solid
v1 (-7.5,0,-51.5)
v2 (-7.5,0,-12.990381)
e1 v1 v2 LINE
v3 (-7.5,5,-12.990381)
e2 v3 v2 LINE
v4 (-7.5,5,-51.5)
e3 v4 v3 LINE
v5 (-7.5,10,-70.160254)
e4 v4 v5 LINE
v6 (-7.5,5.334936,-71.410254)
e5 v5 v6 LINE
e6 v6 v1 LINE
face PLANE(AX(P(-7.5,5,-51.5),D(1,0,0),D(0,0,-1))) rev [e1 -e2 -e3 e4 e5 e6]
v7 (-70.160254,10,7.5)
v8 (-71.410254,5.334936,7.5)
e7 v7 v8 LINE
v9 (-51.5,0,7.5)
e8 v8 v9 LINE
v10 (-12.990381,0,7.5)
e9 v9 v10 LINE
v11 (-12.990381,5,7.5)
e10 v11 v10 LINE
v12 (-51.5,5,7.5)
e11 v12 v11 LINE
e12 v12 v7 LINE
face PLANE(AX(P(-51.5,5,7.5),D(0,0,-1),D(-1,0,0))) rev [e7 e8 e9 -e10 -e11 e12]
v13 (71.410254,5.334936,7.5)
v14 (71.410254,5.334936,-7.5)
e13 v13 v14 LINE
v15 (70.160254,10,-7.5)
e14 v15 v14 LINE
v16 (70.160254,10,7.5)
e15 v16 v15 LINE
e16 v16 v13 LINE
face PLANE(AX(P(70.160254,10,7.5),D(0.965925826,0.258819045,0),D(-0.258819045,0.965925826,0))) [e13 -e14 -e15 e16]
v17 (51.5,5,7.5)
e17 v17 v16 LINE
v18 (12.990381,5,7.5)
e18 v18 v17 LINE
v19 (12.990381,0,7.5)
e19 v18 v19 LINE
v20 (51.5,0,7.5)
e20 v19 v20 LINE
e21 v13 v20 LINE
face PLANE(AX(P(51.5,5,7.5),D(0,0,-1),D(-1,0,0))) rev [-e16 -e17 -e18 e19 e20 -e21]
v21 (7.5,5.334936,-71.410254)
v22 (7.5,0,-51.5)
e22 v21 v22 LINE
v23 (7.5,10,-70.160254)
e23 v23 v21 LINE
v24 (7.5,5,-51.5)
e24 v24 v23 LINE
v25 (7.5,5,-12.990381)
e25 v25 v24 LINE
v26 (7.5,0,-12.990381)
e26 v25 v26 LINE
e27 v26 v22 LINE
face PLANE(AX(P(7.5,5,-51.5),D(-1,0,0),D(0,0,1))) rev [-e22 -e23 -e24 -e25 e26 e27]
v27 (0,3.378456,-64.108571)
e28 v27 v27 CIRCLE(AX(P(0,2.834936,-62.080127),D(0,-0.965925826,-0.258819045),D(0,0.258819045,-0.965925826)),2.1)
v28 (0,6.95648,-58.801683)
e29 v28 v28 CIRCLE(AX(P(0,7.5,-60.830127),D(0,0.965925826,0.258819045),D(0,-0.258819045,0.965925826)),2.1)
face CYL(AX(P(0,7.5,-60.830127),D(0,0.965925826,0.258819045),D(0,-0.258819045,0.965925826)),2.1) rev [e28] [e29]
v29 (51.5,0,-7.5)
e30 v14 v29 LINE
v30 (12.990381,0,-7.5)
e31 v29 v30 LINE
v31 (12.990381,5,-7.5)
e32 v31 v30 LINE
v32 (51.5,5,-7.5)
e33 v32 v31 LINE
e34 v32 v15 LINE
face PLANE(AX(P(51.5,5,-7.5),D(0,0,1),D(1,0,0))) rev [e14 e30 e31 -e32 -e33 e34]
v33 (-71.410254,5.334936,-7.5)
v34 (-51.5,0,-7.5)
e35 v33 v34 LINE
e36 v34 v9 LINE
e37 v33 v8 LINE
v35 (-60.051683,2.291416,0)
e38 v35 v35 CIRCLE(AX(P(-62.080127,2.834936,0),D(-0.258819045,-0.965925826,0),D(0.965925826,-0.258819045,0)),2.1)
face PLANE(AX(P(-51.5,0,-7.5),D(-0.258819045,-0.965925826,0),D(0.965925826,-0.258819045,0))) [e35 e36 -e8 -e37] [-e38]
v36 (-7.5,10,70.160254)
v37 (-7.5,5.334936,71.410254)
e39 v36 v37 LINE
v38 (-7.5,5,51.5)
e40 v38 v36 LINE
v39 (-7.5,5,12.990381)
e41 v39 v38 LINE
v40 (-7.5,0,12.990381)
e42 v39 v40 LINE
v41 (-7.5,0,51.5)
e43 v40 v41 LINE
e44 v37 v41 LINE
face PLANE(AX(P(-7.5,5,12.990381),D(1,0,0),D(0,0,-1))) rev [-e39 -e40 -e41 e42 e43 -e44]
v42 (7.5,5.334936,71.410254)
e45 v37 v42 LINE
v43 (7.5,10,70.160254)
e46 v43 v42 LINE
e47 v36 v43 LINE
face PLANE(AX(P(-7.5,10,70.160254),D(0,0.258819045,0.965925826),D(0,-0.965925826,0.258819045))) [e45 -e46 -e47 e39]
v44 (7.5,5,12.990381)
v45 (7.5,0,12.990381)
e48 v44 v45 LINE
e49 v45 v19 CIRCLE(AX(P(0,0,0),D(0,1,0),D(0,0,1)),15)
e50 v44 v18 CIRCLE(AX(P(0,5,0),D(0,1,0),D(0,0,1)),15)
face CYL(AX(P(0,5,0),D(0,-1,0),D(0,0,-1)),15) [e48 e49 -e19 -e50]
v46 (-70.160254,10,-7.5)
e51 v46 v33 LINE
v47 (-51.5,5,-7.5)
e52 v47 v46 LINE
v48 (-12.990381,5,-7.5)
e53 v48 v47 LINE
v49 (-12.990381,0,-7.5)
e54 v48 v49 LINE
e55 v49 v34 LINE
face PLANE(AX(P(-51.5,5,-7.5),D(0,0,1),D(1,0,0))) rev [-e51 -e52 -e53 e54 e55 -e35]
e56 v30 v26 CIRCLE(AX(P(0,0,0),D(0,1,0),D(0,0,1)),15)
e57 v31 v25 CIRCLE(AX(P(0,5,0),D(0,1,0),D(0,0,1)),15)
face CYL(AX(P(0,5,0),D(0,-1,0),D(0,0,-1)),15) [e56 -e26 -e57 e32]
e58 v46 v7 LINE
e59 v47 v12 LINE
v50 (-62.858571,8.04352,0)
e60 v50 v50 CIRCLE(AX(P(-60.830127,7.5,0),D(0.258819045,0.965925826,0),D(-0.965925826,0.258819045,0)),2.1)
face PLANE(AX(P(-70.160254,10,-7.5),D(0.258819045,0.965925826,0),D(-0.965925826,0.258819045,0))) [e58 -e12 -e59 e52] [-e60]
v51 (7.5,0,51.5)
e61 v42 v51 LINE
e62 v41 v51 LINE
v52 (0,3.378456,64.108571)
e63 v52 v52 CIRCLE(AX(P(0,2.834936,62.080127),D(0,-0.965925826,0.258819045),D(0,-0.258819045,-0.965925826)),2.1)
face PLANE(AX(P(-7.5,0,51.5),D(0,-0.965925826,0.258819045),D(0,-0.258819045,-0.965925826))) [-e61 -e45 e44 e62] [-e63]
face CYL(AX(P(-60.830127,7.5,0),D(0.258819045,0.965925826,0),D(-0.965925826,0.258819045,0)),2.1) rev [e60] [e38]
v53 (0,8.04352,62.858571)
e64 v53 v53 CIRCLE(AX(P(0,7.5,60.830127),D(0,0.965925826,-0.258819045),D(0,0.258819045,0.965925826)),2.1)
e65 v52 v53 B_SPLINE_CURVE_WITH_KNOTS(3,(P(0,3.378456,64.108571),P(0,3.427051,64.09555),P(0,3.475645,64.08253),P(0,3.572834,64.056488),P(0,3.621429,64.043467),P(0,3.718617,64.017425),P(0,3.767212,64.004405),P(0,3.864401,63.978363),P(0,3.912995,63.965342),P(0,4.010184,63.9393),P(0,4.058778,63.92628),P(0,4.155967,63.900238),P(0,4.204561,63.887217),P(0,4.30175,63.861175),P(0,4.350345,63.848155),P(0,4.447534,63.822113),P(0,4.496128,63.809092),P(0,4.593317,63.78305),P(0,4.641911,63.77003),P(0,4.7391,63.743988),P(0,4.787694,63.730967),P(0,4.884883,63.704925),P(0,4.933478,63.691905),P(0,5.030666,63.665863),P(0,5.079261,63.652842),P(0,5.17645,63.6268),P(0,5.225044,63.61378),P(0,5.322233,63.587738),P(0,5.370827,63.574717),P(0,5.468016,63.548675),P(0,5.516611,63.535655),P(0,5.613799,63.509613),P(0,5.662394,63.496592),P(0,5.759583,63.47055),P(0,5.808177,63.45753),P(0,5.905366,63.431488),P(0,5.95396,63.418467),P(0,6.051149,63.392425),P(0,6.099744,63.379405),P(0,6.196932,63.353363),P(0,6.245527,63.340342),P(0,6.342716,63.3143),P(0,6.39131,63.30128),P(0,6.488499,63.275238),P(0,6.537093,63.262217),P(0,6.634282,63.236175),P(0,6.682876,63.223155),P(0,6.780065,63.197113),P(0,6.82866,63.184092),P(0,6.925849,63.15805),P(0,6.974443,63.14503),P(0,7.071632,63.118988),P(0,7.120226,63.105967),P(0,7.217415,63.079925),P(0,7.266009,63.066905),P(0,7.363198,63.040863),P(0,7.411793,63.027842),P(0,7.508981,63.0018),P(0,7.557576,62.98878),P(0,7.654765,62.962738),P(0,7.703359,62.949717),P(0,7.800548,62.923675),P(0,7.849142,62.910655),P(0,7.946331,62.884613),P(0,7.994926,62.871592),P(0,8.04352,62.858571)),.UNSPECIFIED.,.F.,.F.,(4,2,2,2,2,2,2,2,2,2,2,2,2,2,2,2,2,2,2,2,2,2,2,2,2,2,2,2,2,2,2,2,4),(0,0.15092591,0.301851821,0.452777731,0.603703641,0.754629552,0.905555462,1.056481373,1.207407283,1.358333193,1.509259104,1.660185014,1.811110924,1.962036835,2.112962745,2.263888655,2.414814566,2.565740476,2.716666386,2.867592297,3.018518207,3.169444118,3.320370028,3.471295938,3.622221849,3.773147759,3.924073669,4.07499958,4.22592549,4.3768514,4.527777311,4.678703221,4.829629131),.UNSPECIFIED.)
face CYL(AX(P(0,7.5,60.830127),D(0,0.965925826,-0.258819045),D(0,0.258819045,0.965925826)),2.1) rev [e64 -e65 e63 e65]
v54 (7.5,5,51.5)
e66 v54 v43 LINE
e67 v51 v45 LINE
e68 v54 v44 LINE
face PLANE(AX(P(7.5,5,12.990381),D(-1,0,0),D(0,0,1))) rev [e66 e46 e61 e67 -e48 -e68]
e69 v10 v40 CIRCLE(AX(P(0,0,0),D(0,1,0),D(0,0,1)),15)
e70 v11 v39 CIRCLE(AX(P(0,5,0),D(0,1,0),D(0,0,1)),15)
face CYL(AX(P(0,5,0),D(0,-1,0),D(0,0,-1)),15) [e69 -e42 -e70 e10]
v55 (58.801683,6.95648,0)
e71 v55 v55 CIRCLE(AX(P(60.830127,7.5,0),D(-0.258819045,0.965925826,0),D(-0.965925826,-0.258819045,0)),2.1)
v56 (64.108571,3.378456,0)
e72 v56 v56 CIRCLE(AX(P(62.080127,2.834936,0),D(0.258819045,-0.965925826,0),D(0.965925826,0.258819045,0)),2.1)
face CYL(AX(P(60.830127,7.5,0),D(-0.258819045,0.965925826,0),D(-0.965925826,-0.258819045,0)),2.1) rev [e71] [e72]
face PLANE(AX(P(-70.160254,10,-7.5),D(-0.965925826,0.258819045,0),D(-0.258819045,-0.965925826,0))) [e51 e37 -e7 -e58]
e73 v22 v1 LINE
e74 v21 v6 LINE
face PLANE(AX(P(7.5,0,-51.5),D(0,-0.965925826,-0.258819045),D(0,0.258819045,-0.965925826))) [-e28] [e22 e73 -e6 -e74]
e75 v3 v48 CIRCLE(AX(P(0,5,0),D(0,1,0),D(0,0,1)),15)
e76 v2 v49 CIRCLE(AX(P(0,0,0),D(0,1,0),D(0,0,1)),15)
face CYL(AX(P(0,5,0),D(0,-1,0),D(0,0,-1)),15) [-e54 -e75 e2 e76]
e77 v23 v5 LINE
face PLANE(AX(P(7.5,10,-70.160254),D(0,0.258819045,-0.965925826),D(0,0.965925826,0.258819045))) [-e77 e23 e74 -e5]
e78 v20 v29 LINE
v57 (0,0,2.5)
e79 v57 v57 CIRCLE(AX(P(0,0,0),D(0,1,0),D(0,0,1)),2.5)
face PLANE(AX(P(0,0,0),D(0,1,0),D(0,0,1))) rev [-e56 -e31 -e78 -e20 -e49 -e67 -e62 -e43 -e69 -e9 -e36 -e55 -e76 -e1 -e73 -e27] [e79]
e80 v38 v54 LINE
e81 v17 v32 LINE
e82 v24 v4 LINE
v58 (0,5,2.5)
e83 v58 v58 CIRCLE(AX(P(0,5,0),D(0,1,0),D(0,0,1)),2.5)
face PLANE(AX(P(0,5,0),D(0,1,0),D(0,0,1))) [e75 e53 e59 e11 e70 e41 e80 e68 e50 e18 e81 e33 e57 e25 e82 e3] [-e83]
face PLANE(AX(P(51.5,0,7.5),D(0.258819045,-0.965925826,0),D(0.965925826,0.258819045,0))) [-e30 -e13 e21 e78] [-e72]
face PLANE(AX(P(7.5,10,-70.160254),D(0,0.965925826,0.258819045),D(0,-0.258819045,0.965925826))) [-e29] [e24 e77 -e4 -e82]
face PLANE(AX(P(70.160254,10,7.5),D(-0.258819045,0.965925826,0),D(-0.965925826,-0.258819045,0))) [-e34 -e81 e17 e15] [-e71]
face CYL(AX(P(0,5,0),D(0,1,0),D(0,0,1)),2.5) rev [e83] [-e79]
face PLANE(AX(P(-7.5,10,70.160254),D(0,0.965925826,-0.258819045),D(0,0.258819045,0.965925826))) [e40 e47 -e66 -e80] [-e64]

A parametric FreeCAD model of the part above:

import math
import FreeCAD as App
import Part
import Sketcher
from FreeCAD import Vector
Q = App.Units.Quantity

doc = App.newDocument("Part")
body = doc.addObject("PartDesign::Body", "Body")

# Sketch on XZ plane
sketch1 = body.newObject("Sketcher::SketchObject", "Sketch")
sketch1.AttachmentSupport = (doc.getObject("XZ_Plane"), [""])
sketch1.MapMode = "FlatFace"
sketch1.addGeometry([
    Part.LineSegment(Vector(8, -52, 0), Vector(-8, -52, 0)),  # 0
    Part.LineSegment(Vector(-8, -52, 0), Vector(-8, -13, 0)),  # 1
    Part.ArcOfCircle(Part.Circle(Vector(0, 0, 0), Vector(0, 0, 1), 15), math.radians(-150), math.radians(-120)),  # 2
    Part.LineSegment(Vector(-13, -8, 0), Vector(-52, -8, 0)),  # 3
    Part.LineSegment(Vector(-52, -8, 0), Vector(-52, 8, 0)),  # 4
    Part.LineSegment(Vector(-52, 8, 0), Vector(-13, 8, 0)),  # 5
    Part.ArcOfCircle(Part.Circle(Vector(0, 0, 0), Vector(0, 0, 1), 15), math.radians(120), math.radians(150)),  # 6
    Part.LineSegment(Vector(-8, 13, 0), Vector(-8, 52, 0)),  # 7
    Part.LineSegment(Vector(-8, 52, 0), Vector(8, 52, 0)),  # 8
    Part.LineSegment(Vector(8, 52, 0), Vector(8, 13, 0)),  # 9
    Part.ArcOfCircle(Part.Circle(Vector(0, 0, 0), Vector(0, 0, 1), 15), math.radians(30), math.radians(60)),  # 10
    Part.LineSegment(Vector(13, 8, 0), Vector(52, 8, 0)),  # 11
    Part.LineSegment(Vector(52, 8, 0), Vector(52, -8, 0)),  # 12
    Part.LineSegment(Vector(52, -8, 0), Vector(13, -8, 0)),  # 13
    Part.ArcOfCircle(Part.Circle(Vector(0, 0, 0), Vector(0, 0, 1), 15), math.radians(-60), math.radians(-30)),  # 14
    Part.LineSegment(Vector(8, -13, 0), Vector(8, -52, 0)),  # 15
], False)
sketch1.addConstraint([
    Sketcher.Constraint("Coincident", 0, 2, 1, 1),
    Sketcher.Constraint("Coincident", 1, 2, 2, 2),
    Sketcher.Constraint("Coincident", 2, 1, 3, 1),
    Sketcher.Constraint("Coincident", 3, 2, 4, 1),
    Sketcher.Constraint("Coincident", 4, 2, 5, 1),
    Sketcher.Constraint("Coincident", 5, 2, 6, 2),
    Sketcher.Constraint("Coincident", 6, 1, 7, 1),
    Sketcher.Constraint("Coincident", 7, 2, 8, 1),
    Sketcher.Constraint("Coincident", 8, 2, 9, 1),
    Sketcher.Constraint("Coincident", 9, 2, 10, 2),
    Sketcher.Constraint("Coincident", 10, 1, 11, 1),
    Sketcher.Constraint("Coincident", 11, 2, 12, 1),
    Sketcher.Constraint("Coincident", 12, 2, 13, 1),
    Sketcher.Constraint("Coincident", 13, 2, 14, 2),
    Sketcher.Constraint("Coincident", 14, 1, 15, 1),
    Sketcher.Constraint("Coincident", 15, 2, 0, 1),
    Sketcher.Constraint("Horizontal", 0),
    Sketcher.Constraint("Vertical", 1),
    Sketcher.Constraint("Horizontal", 3),
    Sketcher.Constraint("Vertical", 4),
    Sketcher.Constraint("Horizontal", 5),
    Sketcher.Constraint("Vertical", 7),
    Sketcher.Constraint("Horizontal", 8),
    Sketcher.Constraint("Vertical", 9),
    Sketcher.Constraint("Horizontal", 11),
    Sketcher.Constraint("Vertical", 12),
    Sketcher.Constraint("Horizontal", 13),
    Sketcher.Constraint("Vertical", 15),
    Sketcher.Constraint("Coincident", 2, 3, -1, 1),
    Sketcher.Constraint("Coincident", 6, 3, -1, 1),
    Sketcher.Constraint("Coincident", 10, 3, -1, 1),
    Sketcher.Constraint("Coincident", 14, 3, -1, 1),
    Sketcher.Constraint("Equal", 2, 6),
    Sketcher.Constraint("Equal", 6, 10),
    Sketcher.Constraint("Equal", 10, 14),
    Sketcher.Constraint("Symmetric", 0, 2, 8, 2, -1, 1),
    Sketcher.Constraint("Symmetric", 3, 2, 11, 2, -1, 1),
    Sketcher.Constraint("Horizontal", 6, 1, 9, 2),
    Sketcher.Constraint("Horizontal", 5, 2, 10, 1),
    Sketcher.Constraint("Horizontal", 3, 2, 12, 2),
    Sketcher.Constraint("Horizontal", 1, 2, 14, 1),
    Sketcher.Constraint("Equal", 13, 1),
    Sketcher.Constraint("Equal", 8, 4),
    Sketcher.Constraint("Radius", 2, 15.0),
    Sketcher.Constraint("DistanceX", 0, 2, 0, 1, 15.0),
    Sketcher.Constraint("DistanceX", 3, 2, 1, 2, 44.0),
])
pad1 = body.newObject("PartDesign::Pad", "Pad")
pad1.Profile = sketch1
pad1.Length = 5
pad1.Reversed = True

# Sketch on YZ plane
sketch2 = body.newObject("Sketcher::SketchObject", "Sketch001")
sketch2.AttachmentSupport = (doc.getObject("YZ_Plane"), [""])
sketch2.MapMode = "FlatFace"
sketch2.AttachmentOffset = App.Placement(Vector(0, 0, 7.5), App.Rotation())
sketch2.addGeometry([
    Part.LineSegment(Vector(5.3, 71.4, 0), Vector(0, 51.5, 0)),
    Part.LineSegment(Vector(0, 51.5, 0), Vector(5, 51.5, 0)),
    Part.LineSegment(Vector(5, 51.5, 0), Vector(10, 70.2, 0)),
    Part.LineSegment(Vector(10, 70.2, 0), Vector(5.3, 71.4, 0)),
], False)
sketch2.addConstraint([
    Sketcher.Constraint("Coincident", 0, 2, 1, 1),
    Sketcher.Constraint("Coincident", 1, 2, 2, 1),
    Sketcher.Constraint("Coincident", 2, 2, 3, 1),
    Sketcher.Constraint("Coincident", 3, 2, 0, 1),
    Sketcher.Constraint("Horizontal", 1),
    Sketcher.Constraint("PointOnObject", 0, 2, -2),
    Sketcher.Constraint("Parallel", 0, 2),
    Sketcher.Constraint("Perpendicular", 2, 3),
    Sketcher.Constraint("DistanceX", 1, 1, 1, 2, 5.0),
    Sketcher.Constraint("Angle", 0, Q("-105 deg")),
    Sketcher.Constraint("DistanceX", -1, 1, 2, 2, 10.0),
    Sketcher.Constraint("DistanceY", -1, 1, 0, 2, 51.5),
])
pad2 = body.newObject("PartDesign::Pad", "Pad001")
pad2.Profile = sketch2
pad2.Length = 15
pad2.Reversed = True

# Sketch on XY plane
sketch3 = body.newObject("Sketcher::SketchObject", "Sketch002")
sketch3.AttachmentSupport = (doc.getObject("XY_Plane"), [""])
sketch3.MapMode = "FlatFace"
sketch3.AttachmentOffset = App.Placement(Vector(0, 0, -7.5), App.Rotation())
sketch3.addGeometry([
    Part.LineSegment(Vector(71.4, 5.3, 0), Vector(51.5, 0, 0)),
    Part.LineSegment(Vector(51.5, 0, 0), Vector(51.5, 5, 0)),
    Part.LineSegment(Vector(51.5, 5, 0), Vector(70.2, 10, 0)),
    Part.LineSegment(Vector(70.2, 10, 0), Vector(71.4, 5.3, 0)),
], False)
sketch3.addConstraint([
    Sketcher.Constraint("Coincident", 0, 2, 1, 1),
    Sketcher.Constraint("Coincident", 1, 2, 2, 1),
    Sketcher.Constraint("Coincident", 2, 2, 3, 1),
    Sketcher.Constraint("Coincident", 3, 2, 0, 1),
    Sketcher.Constraint("Vertical", 1),
    Sketcher.Constraint("PointOnObject", 0, 2, -1),
    Sketcher.Constraint("Parallel", 0, 2),
    Sketcher.Constraint("Perpendicular", 2, 3),
    Sketcher.Constraint("DistanceY", 1, 1, 1, 2, 5.0),
    Sketcher.Constraint("Angle", 0, Q("-165 deg")),
    Sketcher.Constraint("DistanceY", -1, 1, 2, 2, 10.0),
    Sketcher.Constraint("DistanceX", -1, 1, 0, 2, 51.5),
])
pad3 = body.newObject("PartDesign::Pad", "Pad002")
pad3.Profile = sketch3
pad3.Length = 15

# Sketch on YZ plane
sketch4 = body.newObject("Sketcher::SketchObject", "Sketch003")
sketch4.AttachmentSupport = (doc.getObject("YZ_Plane"), [""])
sketch4.MapMode = "FlatFace"
sketch4.AttachmentOffset = App.Placement(Vector(0, 0, -7.5), App.Rotation())
sketch4.addGeometry([
    Part.LineSegment(Vector(5.3, -71.4, 0), Vector(0, -51.5, 0)),
    Part.LineSegment(Vector(0, -51.5, 0), Vector(5, -51.5, 0)),
    Part.LineSegment(Vector(5, -51.5, 0), Vector(10, -70.2, 0)),
    Part.LineSegment(Vector(10, -70.2, 0), Vector(5.3, -71.4, 0)),
], False)
sketch4.addConstraint([
    Sketcher.Constraint("Coincident", 0, 2, 1, 1),
    Sketcher.Constraint("Coincident", 1, 2, 2, 1),
    Sketcher.Constraint("Coincident", 2, 2, 3, 1),
    Sketcher.Constraint("Coincident", 3, 2, 0, 1),
    Sketcher.Constraint("Horizontal", 1),
    Sketcher.Constraint("PointOnObject", 0, 2, -2),
    Sketcher.Constraint("Parallel", 0, 2),
    Sketcher.Constraint("Perpendicular", 2, 3),
    Sketcher.Constraint("DistanceX", 1, 1, 1, 2, 5.0),
    Sketcher.Constraint("Angle", 0, Q("105 deg")),
    Sketcher.Constraint("DistanceX", -1, 1, 2, 2, 10.0),
    Sketcher.Constraint("DistanceY", 0, 2, -1, 1, 51.5),
])
pad4 = body.newObject("PartDesign::Pad", "Pad003")
pad4.Profile = sketch4
pad4.Length = 15

# Sketch on XY plane
sketch5 = body.newObject("Sketcher::SketchObject", "Sketch004")
sketch5.AttachmentSupport = (doc.getObject("XY_Plane"), [""])
sketch5.MapMode = "FlatFace"
sketch5.AttachmentOffset = App.Placement(Vector(0, 0, 7.5), App.Rotation())
sketch5.addGeometry([
    Part.LineSegment(Vector(-71.4, 5.3, 0), Vector(-51.5, 0, 0)),
    Part.LineSegment(Vector(-51.5, 0, 0), Vector(-51.5, 5, 0)),
    Part.LineSegment(Vector(-51.5, 5, 0), Vector(-70.2, 10, 0)),
    Part.LineSegment(Vector(-70.2, 10, 0), Vector(-71.4, 5.3, 0)),
], False)
sketch5.addConstraint([
    Sketcher.Constraint("Coincident", 0, 2, 1, 1),
    Sketcher.Constraint("Coincident", 1, 2, 2, 1),
    Sketcher.Constraint("Coincident", 2, 2, 3, 1),
    Sketcher.Constraint("Coincident", 3, 2, 0, 1),
    Sketcher.Constraint("Vertical", 1),
    Sketcher.Constraint("PointOnObject", 0, 2, -1),
    Sketcher.Constraint("Parallel", 0, 2),
    Sketcher.Constraint("Perpendicular", 2, 3),
    Sketcher.Constraint("DistanceY", 1, 1, 1, 2, 5.0),
    Sketcher.Constraint("Angle", 0, Q("-15 deg")),
    Sketcher.Constraint("DistanceY", -1, 1, 2, 2, 10.0),
    Sketcher.Constraint("DistanceX", 0, 2, -1, 1, 51.5),
])
pad5 = body.newObject("PartDesign::Pad", "Pad004")
pad5.Profile = sketch5
pad5.Length = 15
pad5.Reversed = True

# Sketch on XZ plane
sketch6 = body.newObject("Sketcher::SketchObject", "Sketch005")
sketch6.AttachmentSupport = (doc.getObject("XZ_Plane"), [""])
sketch6.MapMode = "FlatFace"
sketch6.AttachmentOffset = App.Placement(Vector(0, 0, -5), App.Rotation())
sketch6.addGeometry(Part.Circle(Vector(0, 0, 0), Vector(0, 0, 1), 2.5), False)
sketch6.addConstraint([
    Sketcher.Constraint("Coincident", 0, 3, -1, 1),
    Sketcher.Constraint("Diameter", 0, 5.0),
])
doc.recompute()
hole = body.newObject("PartDesign::Hole", "Hole")
hole.Profile = sketch6
hole.ThreadType = "None"
hole.Diameter = 5
hole.DepthType = "ThroughAll"
hole.Reversed = True

# Sketch on an angled plane
sketch7 = body.newObject("Sketcher::SketchObject", "Sketch006")
sketch7.Placement = App.Placement(Vector(-2.199846, -8.209936, 0), App.Rotation(Vector(0.965925826, -0.258819045, 0), Vector(0, 0, -0.999999999), Vector(0.258819045, 0.965925826, 0), "ZXY"))
sketch7.addGeometry(Part.Circle(Vector(-60.7, 0, 0), Vector(0, 0, 1), 2.1), False)
sketch7.addConstraint([
    Sketcher.Constraint("PointOnObject", 0, 3, -1),
    Sketcher.Constraint("Diameter", 0, 4.2),
    Sketcher.Constraint("DistanceX", 0, 3, -1, 1, 60.698534),
])
doc.recompute()
hole2 = body.newObject("PartDesign::Hole", "Hole001")
hole2.Profile = sketch7
hole2.ThreadType = "None"
hole2.Diameter = 4.2
hole2.DepthType = "ThroughAll"

# Sketch on an angled plane
sketch8 = body.newObject("Sketcher::SketchObject", "Sketch007")
sketch8.Placement = App.Placement(Vector(0, -8.209931, 2.199844), App.Rotation(Vector(0, 0.25881896, 0.965925849), Vector(1, 0, 0), Vector(0, 0.965925849, -0.25881896), "ZXY"))
sketch8.addGeometry(Part.Circle(Vector(60.7, 0, 0), Vector(0, 0, 1), 2.1), False)
sketch8.addConstraint([
    Sketcher.Constraint("PointOnObject", 0, 3, -1),
    Sketcher.Constraint("Diameter", 0, 4.2),
    Sketcher.Constraint("DistanceX", -1, 1, 0, 3, 60.698534),
])
doc.recompute()
hole3 = body.newObject("PartDesign::Hole", "Hole002")
hole3.Profile = sketch8
hole3.ThreadType = "None"
hole3.Diameter = 4.2
hole3.DepthType = "ThroughAll"

# Sketch on an angled plane
sketch9 = body.newObject("Sketcher::SketchObject", "Sketch008")
sketch9.Placement = App.Placement(Vector(2.199844, -8.209931, 0), App.Rotation(Vector(0.965925849, 0.25881896, 0), Vector(0, 0, -1), Vector(-0.25881896, 0.965925849, 0), "ZXY"))
sketch9.addGeometry(Part.Circle(Vector(60.7, 0, 0), Vector(0, 0, 1), 2.1), False)
sketch9.addConstraint([
    Sketcher.Constraint("PointOnObject", 0, 3, -1),
    Sketcher.Constraint("Diameter", 0, 4.2),
    Sketcher.Constraint("DistanceX", -1, 1, 0, 3, 60.698534),
])
doc.recompute()
hole4 = body.newObject("PartDesign::Hole", "Hole003")
hole4.Profile = sketch9
hole4.ThreadType = "None"
hole4.Diameter = 4.2
hole4.DepthType = "ThroughAll"

# Sketch on an angled plane
sketch10 = body.newObject("Sketcher::SketchObject", "Sketch009")
sketch10.Placement = App.Placement(Vector(0, -8.209931, -2.199844), App.Rotation(Vector(0, -0.25881896, 0.965925849), Vector(1, 0, 0), Vector(0, 0.965925849, 0.25881896), "ZXY"))
sketch10.addGeometry(Part.Circle(Vector(-60.7, 0, 0), Vector(0, 0, 1), 2.1), False)
sketch10.addConstraint([
    Sketcher.Constraint("PointOnObject", 0, 3, -1),
    Sketcher.Constraint("Diameter", 0, 4.2),
    Sketcher.Constraint("DistanceX", 0, 3, -1, 1, 60.698534),
])
doc.recompute()
hole5 = body.newObject("PartDesign::Hole", "Hole004")
hole5.Profile = sketch10
hole5.ThreadType = "None"
hole5.Diameter = 4.2
hole5.DepthType = "ThroughAll"

doc.recompute()
